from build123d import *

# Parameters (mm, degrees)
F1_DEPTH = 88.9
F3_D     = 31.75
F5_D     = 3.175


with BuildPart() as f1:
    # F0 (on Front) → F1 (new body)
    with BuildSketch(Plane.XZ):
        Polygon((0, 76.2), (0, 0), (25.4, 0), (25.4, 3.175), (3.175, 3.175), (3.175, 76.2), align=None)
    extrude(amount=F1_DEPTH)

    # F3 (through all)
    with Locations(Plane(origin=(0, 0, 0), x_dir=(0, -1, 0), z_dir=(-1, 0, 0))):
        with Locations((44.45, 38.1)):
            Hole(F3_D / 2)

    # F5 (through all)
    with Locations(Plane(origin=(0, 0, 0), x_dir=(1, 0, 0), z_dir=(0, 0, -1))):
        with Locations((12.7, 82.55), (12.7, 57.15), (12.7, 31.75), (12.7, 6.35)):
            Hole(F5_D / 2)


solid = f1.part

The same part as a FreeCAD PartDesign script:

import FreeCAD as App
import Part
import Sketcher
Q = App.Units.Quantity

doc = App.newDocument("Part")
body = doc.addObject("PartDesign::Body", "Body")

# Sketch on XZ plane
sketch1 = body.newObject("Sketcher::SketchObject", "Sketch")
sketch1.AttachmentSupport = (doc.getObject("XZ_Plane"), [""])
sketch1.MapMode = "FlatFace"
sketch1.addGeometry([
    Part.LineSegment(App.Vector(0, 76.2, 0), App.Vector(0, 0, 0)),  # 0
    Part.LineSegment(App.Vector(0, 0, 0), App.Vector(25.4, 0, 0)),  # 1
    Part.LineSegment(App.Vector(25.4, 0, 0), App.Vector(25.4, 3.2, 0)),  # 2
    Part.LineSegment(App.Vector(25.4, 3.2, 0), App.Vector(3.2, 3.2, 0)),  # 3
    Part.LineSegment(App.Vector(3.2, 3.2, 0), App.Vector(3.2, 76.2, 0)),  # 4
    Part.LineSegment(App.Vector(3.2, 76.2, 0), App.Vector(0, 76.2, 0)),  # 5
], False)
sketch1.addConstraint([
    Sketcher.Constraint("Coincident", 0, 2, 1, 1),
    Sketcher.Constraint("Coincident", 1, 2, 2, 1),
    Sketcher.Constraint("Coincident", 2, 2, 3, 1),
    Sketcher.Constraint("Coincident", 3, 2, 4, 1),
    Sketcher.Constraint("Coincident", 4, 2, 5, 1),
    Sketcher.Constraint("Coincident", 5, 2, 0, 1),
    Sketcher.Constraint("Vertical", 0),
    Sketcher.Constraint("Horizontal", 1),
    Sketcher.Constraint("Vertical", 2),
    Sketcher.Constraint("Horizontal", 3),
    Sketcher.Constraint("Vertical", 4),
    Sketcher.Constraint("Horizontal", 5),
    Sketcher.Constraint("Coincident", 0, 2, -1, 1),
    Sketcher.Constraint("Equal", 5, 2),
    Sketcher.Constraint("DistanceX", 1, 1, 1, 2, Q("1 in")),
    Sketcher.Constraint("DistanceY", 0, 2, 0, 1, Q("3 in")),
    Sketcher.Constraint("DistanceX", 3, 2, 3, 1, Q("0.875 in")),
])
pad1 = body.newObject("PartDesign::Pad", "Pad")
pad1.Profile = sketch1
pad1.Length = Q("3.5 in")

# Sketch on YZ plane
sketch2 = body.newObject("Sketcher::SketchObject", "Sketch001")
sketch2.AttachmentSupport = (doc.getObject("YZ_Plane"), [""])
sketch2.MapMode = "FlatFace"
sketch2.addGeometry(Part.Circle(App.Vector(-44, 38, 0), App.Vector(0, 0, 1), 16), False)
sketch2.addConstraint([
    Sketcher.Constraint("Diameter", 0, Q("1.25 in")),
    Sketcher.Constraint("DistanceY", -1, 1, 0, 3, Q("1.5 in")),
    Sketcher.Constraint("DistanceX", 0, 3, -1, 1, Q("1.75 in")),
])
doc.recompute()
hole = body.newObject("PartDesign::Hole", "Hole")
hole.Profile = sketch2
hole.ThreadType = "None"
hole.Diameter = Q("1.25 in")
hole.DepthType = "ThroughAll"
hole.Reversed = True

# Sketch on XY plane
sketch3 = body.newObject("Sketcher::SketchObject", "Sketch002")
sketch3.AttachmentSupport = (doc.getObject("XY_Plane"), [""])
sketch3.MapMode = "FlatFace"
sketch3.addGeometry([
    Part.Circle(App.Vector(12.7, -82.5, 0), App.Vector(0, 0, 1), 1.6),
    Part.Circle(App.Vector(12.7, -57.1, 0), App.Vector(0, 0, 1), 1.6),
    Part.Circle(App.Vector(12.7, -31.8, 0), App.Vector(0, 0, 1), 1.6),
    Part.Circle(App.Vector(12.7, -6.3, 0), App.Vector(0, 0, 1), 1.6),
], False)
sketch3.addConstraint([
    Sketcher.Constraint("Equal", 0, 1),
    Sketcher.Constraint("Equal", 1, 2),
    Sketcher.Constraint("Equal", 2, 3),
    Sketcher.Constraint("Vertical", 0, 3, 1, 3),
    Sketcher.Constraint("Vertical", 1, 3, 2, 3),
    Sketcher.Constraint("Vertical", 2, 3, 3, 3),
    Sketcher.Constraint("Diameter", 0, Q("0.125 in")),
    Sketcher.Constraint("DistanceY", 0, 3, 1, 3, Q("1 in")),
    Sketcher.Constraint("DistanceY", 1, 3, 2, 3, Q("1 in")),
    Sketcher.Constraint("DistanceY", 2, 3, 3, 3, Q("1 in")),
    Sketcher.Constraint("DistanceX", -1, 1, 0, 3, Q("0.5 in")),
    Sketcher.Constraint("DistanceY", 0, 3, -1, 1, Q("3.25 in")),
])
doc.recompute()
hole2 = body.newObject("PartDesign::Hole", "Hole001")
hole2.Profile = sketch3
hole2.ThreadType = "None"
hole2.Diameter = Q("0.125 in")
hole2.DepthType = "ThroughAll"
hole2.Reversed = True

doc.recompute()
